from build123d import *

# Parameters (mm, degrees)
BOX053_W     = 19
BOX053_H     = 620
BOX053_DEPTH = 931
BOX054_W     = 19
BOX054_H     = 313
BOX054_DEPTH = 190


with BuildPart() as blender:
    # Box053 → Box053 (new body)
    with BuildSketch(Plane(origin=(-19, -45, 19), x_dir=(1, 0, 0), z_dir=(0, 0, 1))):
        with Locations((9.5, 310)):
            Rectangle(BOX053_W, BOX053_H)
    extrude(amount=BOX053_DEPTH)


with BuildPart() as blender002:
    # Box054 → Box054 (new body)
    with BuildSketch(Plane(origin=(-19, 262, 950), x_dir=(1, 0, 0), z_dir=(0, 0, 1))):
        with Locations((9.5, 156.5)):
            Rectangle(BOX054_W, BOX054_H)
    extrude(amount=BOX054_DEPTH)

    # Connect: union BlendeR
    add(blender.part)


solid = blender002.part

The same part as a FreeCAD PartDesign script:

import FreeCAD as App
import Part
import Sketcher
from FreeCAD import Vector
Q = App.Units.Quantity


def add_polygon(sketch, points):
    """Adds a closed chain of lines whose ends are joined by coincident constraints."""
    first, n = sketch.GeometryCount, len(points)
    for a, b in zip(points, points[1:] + points[:1]):
        sketch.addGeometry(Part.LineSegment(App.Vector(*a, 0), App.Vector(*b, 0)), False)
    for i in range(n):
        sketch.addConstraint(Sketcher.Constraint("Coincident", first + i, 2, first + (i + 1) % n, 1))

doc = App.newDocument("Part")
body = doc.addObject("PartDesign::Body", "Body")

sketch1 = body.newObject("Sketcher::SketchObject", "Sketch")
sketch1.AttachmentSupport = (doc.getObject("XY_Plane"), [""])
sketch1.MapMode = "FlatFace"
sketch1.AttachmentOffset = App.Placement(Vector(0, 0, 19), App.Rotation())
add_polygon(sketch1, [(-19, 575), (-19, -45), (0, -45), (0, 575)])
sketch1.addConstraint([
    Sketcher.Constraint("Vertical", 0),
    Sketcher.Constraint("Horizontal", 1),
    Sketcher.Constraint("Vertical", 2),
    Sketcher.Constraint("Horizontal", 3),
    Sketcher.Constraint("PointOnObject", 1, 2, -2),
    Sketcher.Constraint("DistanceX", 1, 1, 1, 2, Q("19 mm")),
    Sketcher.Constraint("DistanceY", 0, 2, 0, 1, Q("620 mm")),
    Sketcher.Constraint("DistanceY", 0, 2, -1, 1, Q("45 mm")),
])
pad1 = body.newObject("PartDesign::Pad", "Pad")
pad1.Profile = sketch1
pad1.Length = 931
body2 = doc.addObject("PartDesign::Body", "Body001")

sketch2 = body2.newObject("Sketcher::SketchObject", "Sketch001")
sketch2.AttachmentSupport = (doc.getObject("XY_Plane001"), [""])
sketch2.MapMode = "FlatFace"
sketch2.AttachmentOffset = App.Placement(Vector(0, 0, 950), App.Rotation())
add_polygon(sketch2, [(-19, 575), (-19, 262), (0, 262), (0, 575)])
sketch2.addConstraint([
    Sketcher.Constraint("Vertical", 0),
    Sketcher.Constraint("Horizontal", 1),
    Sketcher.Constraint("Vertical", 2),
    Sketcher.Constraint("Horizontal", 3),
    Sketcher.Constraint("PointOnObject", 1, 2, -2),
    Sketcher.Constraint("DistanceX", 1, 1, 1, 2, Q("19 mm")),
    Sketcher.Constraint("DistanceY", 0, 2, 0, 1, Q("313 mm")),
    Sketcher.Constraint("DistanceY", -1, 1, 0, 2, Q("262 mm")),
])
pad2 = body2.newObject("PartDesign::Pad", "Pad001")
pad2.Profile = sketch2
pad2.Length = 190
doc.recompute()

boolean = body2.newObject("PartDesign::Boolean", "Boolean")
boolean.Type = "Fuse"
boolean.addObjects([body])

doc.recompute()
